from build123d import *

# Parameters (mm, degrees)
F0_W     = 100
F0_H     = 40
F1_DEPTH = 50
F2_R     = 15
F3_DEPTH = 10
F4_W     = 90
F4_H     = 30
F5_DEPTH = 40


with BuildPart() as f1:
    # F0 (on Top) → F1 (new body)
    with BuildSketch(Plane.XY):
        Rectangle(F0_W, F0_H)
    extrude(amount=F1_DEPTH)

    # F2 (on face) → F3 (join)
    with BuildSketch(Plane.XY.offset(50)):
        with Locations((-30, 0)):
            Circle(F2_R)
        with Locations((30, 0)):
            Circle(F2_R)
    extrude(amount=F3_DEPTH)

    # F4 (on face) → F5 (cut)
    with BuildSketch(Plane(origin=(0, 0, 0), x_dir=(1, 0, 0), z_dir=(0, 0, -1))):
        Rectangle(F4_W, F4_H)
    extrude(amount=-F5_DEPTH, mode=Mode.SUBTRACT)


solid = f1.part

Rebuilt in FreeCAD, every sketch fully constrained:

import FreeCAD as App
import Part
import Sketcher

V = App.Vector


def add_polygon(sketch, points):
    """Adds a closed chain of lines whose ends are joined by coincident constraints."""
    first, n = sketch.GeometryCount, len(points)
    for a, b in zip(points, points[1:] + points[:1]):
        sketch.addGeometry(Part.LineSegment(App.Vector(*a, 0), App.Vector(*b, 0)), False)
    for i in range(n):
        sketch.addConstraint(Sketcher.Constraint("Coincident", first + i, 2, first + (i + 1) % n, 1))

doc = App.newDocument("Part")
params = doc.addObject("Spreadsheet::Sheet", "Params")
for row, (alias, value) in enumerate([
    ("sketch1_width", "100 mm"),
    ("sketch1_height", "40 mm"),
    ("pad1_length", "50 mm"),
    ("sketch2_diameter", "30 mm"),
    ("pad2_length", "10 mm"),
    ("sketch3_width", "90 mm"),
    ("sketch3_height", "30 mm"),
    ("pocket1_length", "40 mm"),
], start=1):
    params.set(f"A{row}", alias)
    params.set(f"B{row}", "=" + value)
    params.setAlias(f"B{row}", alias)

body = doc.addObject("PartDesign::Body", "Body")

# Sketch on XY plane
sketch1 = body.newObject("Sketcher::SketchObject", "Sketch")
sketch1.AttachmentSupport = (doc.getObject("XY_Plane"), [""])
sketch1.MapMode = "FlatFace"
add_polygon(sketch1, [(-50, 20), (-50, -20), (50, -20), (50, 20)])  # lines 0-3
sketch1.addConstraint([
    Sketcher.Constraint("Vertical", 0),
    Sketcher.Constraint("Horizontal", 1),
    Sketcher.Constraint("Vertical", 2),
    Sketcher.Constraint("Horizontal", 3),
    Sketcher.Constraint("Symmetric", 0, 2, 2, 2, -1, 1),
    Sketcher.Constraint("DistanceX", 1, 1, 1, 2, 100.0),
    Sketcher.Constraint("DistanceY", 0, 2, 0, 1, 40.0),
])
sketch1.setExpression("Constraints[9]", "Params.sketch1_width")
sketch1.setExpression("Constraints[10]", "Params.sketch1_height")
pad1 = body.newObject("PartDesign::Pad", "Pad")
pad1.Profile = sketch1
pad1.setExpression("Length", "Params.pad1_length")

# Sketch on XY plane
sketch2 = body.newObject("Sketcher::SketchObject", "Sketch001")
sketch2.AttachmentSupport = (doc.getObject("XY_Plane"), [""])
sketch2.MapMode = "FlatFace"
sketch2.AttachmentOffset = App.Placement(V(0, 0, 50), App.Rotation())
sketch2.addGeometry([
    Part.Circle(V(-30, 0, 0), V(0, 0, 1), 15),
    Part.Circle(V(30, 0, 0), V(0, 0, 1), 15),
], False)
sketch2.addConstraint([
    Sketcher.Constraint("Equal", 0, 1),
    Sketcher.Constraint("Symmetric", 0, 3, 1, 3, -1, 1),
    Sketcher.Constraint("PointOnObject", 0, 3, -1),
    Sketcher.Constraint("Diameter", 0, 30.0),
    Sketcher.Constraint("DistanceX", 0, 3, -1, 1, 30.0),
])
sketch2.setExpression("Constraints[3]", "Params.sketch2_diameter")
pad2 = body.newObject("PartDesign::Pad", "Pad001")
pad2.Profile = sketch2
pad2.setExpression("Length", "Params.pad2_length")

# Sketch on XY plane
sketch3 = body.newObject("Sketcher::SketchObject", "Sketch002")
sketch3.AttachmentSupport = (doc.getObject("XY_Plane"), [""])
sketch3.MapMode = "FlatFace"
add_polygon(sketch3, [(-45, -15), (-45, 15), (45, 15), (45, -15)])  # lines 0-3
sketch3.addConstraint([
    Sketcher.Constraint("Vertical", 0),
    Sketcher.Constraint("Horizontal", 1),
    Sketcher.Constraint("Vertical", 2),
    Sketcher.Constraint("Horizontal", 3),
    Sketcher.Constraint("Symmetric", 0, 2, 2, 2, -1, 1),
    Sketcher.Constraint("DistanceX", 1, 1, 1, 2, 90.0),
    Sketcher.Constraint("DistanceY", 0, 1, 0, 2, 30.0),
])
sketch3.setExpression("Constraints[9]", "Params.sketch3_width")
sketch3.setExpression("Constraints[10]", "Params.sketch3_height")
pocket1 = body.newObject("PartDesign::Pocket", "Pocket")
pocket1.Profile = sketch3
pocket1.setExpression("Length", "Params.pocket1_length")
pocket1.Reversed = True

doc.recompute()
